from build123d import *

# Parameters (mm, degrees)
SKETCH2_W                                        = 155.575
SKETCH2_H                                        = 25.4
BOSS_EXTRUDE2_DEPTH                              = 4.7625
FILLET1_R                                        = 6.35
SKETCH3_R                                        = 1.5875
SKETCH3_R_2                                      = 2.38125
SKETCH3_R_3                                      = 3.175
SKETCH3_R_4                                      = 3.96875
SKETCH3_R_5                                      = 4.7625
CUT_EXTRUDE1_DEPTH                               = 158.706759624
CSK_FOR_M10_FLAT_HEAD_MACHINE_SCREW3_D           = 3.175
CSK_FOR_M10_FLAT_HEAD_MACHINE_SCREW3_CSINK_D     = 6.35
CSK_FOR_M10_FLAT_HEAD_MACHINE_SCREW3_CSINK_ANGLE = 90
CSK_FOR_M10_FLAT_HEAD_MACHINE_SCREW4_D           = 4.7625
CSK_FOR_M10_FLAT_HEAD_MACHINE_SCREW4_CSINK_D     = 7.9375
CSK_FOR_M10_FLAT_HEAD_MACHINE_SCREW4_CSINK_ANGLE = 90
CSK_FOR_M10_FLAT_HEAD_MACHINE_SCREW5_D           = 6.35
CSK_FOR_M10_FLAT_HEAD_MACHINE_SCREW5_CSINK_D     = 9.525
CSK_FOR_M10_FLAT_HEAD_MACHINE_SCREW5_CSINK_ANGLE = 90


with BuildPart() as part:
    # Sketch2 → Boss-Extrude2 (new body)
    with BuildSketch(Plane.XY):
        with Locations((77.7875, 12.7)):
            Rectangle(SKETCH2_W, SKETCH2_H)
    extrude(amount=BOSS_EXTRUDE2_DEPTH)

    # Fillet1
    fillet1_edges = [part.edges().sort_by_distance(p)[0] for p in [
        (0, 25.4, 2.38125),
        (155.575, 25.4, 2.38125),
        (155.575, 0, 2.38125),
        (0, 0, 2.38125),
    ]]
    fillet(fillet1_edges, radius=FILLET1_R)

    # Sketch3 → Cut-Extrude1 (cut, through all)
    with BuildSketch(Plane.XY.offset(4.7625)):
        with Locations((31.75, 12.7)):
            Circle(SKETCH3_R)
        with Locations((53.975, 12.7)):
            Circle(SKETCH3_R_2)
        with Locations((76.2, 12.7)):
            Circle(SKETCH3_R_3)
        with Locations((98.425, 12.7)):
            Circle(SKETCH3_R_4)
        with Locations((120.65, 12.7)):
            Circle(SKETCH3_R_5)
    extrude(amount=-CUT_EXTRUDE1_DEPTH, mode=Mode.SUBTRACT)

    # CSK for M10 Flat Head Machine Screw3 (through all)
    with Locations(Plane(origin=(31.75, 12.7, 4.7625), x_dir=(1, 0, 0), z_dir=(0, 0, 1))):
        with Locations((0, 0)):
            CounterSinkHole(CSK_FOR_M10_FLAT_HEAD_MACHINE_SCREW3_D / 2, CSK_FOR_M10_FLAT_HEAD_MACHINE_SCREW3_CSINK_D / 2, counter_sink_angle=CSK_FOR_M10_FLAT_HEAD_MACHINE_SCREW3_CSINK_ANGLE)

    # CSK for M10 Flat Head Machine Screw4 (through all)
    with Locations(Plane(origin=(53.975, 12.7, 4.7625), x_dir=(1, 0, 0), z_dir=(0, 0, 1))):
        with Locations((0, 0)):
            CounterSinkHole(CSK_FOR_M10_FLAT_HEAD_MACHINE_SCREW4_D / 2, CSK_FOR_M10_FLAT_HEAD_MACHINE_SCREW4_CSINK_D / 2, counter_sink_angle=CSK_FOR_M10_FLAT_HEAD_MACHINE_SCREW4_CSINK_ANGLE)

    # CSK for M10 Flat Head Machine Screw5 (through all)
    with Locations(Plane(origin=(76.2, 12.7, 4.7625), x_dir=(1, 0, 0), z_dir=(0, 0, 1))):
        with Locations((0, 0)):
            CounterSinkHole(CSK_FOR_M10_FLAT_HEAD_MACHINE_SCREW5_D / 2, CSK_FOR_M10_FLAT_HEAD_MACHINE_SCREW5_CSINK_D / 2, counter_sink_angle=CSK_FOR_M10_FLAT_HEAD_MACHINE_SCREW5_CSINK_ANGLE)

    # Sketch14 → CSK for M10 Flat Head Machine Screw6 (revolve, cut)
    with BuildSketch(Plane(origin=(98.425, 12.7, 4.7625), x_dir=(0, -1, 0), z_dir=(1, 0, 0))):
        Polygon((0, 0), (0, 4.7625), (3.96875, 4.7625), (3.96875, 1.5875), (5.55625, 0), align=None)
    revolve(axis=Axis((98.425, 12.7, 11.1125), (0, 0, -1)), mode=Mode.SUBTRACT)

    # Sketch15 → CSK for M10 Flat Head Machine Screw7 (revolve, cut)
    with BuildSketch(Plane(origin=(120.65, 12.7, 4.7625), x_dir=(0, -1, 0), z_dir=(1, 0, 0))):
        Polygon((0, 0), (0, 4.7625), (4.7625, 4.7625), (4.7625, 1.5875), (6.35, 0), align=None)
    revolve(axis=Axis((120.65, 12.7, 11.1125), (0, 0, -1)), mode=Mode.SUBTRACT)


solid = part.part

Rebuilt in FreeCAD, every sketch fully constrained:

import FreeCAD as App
import Part
import Sketcher
from FreeCAD import Vector
Q = App.Units.Quantity


def edges_at(feature, points):
    """Names of the edges that pass closest to the given points."""
    edges = feature.Shape.Edges
    near = lambda p: min(range(len(edges)), key=lambda i: edges[i].distToShape(Part.Vertex(*p))[0])
    return sorted({f"Edge{near(p) + 1}" for p in points})

doc = App.newDocument("Part")
body = doc.addObject("PartDesign::Body", "Body")

sketch1 = body.newObject("Sketcher::SketchObject", "Sketch")
sketch1.AttachmentSupport = (doc.getObject("XY_Plane"), [""])
sketch1.MapMode = "FlatFace"
sketch1.addGeometry([
    Part.LineSegment(Vector(0, 25, 0), Vector(0, 0, 0)),
    Part.LineSegment(Vector(0, 0, 0), Vector(156, 0, 0)),
    Part.LineSegment(Vector(156, 0, 0), Vector(156, 25, 0)),
    Part.LineSegment(Vector(156, 25, 0), Vector(0, 25, 0)),
], False)
sketch1.addConstraint([
    Sketcher.Constraint("Coincident", 0, 2, 1, 1),
    Sketcher.Constraint("Coincident", 1, 2, 2, 1),
    Sketcher.Constraint("Coincident", 2, 2, 3, 1),
    Sketcher.Constraint("Coincident", 3, 2, 0, 1),
    Sketcher.Constraint("Vertical", 0),
    Sketcher.Constraint("Horizontal", 1),
    Sketcher.Constraint("Vertical", 2),
    Sketcher.Constraint("Horizontal", 3),
    Sketcher.Constraint("Coincident", 0, 2, -1, 1),
    Sketcher.Constraint("DistanceY", 0, 2, 0, 1, Q("1 in")),
    Sketcher.Constraint("DistanceX", 1, 1, 1, 2, Q("6.125 in")),
])
pad1 = body.newObject("PartDesign::Pad", "Pad")
pad1.Profile = sketch1
pad1.Length = Q("0.1875 in")
doc.recompute()

fillet = body.newObject("PartDesign::Fillet", "Fillet")
fillet.Base = (pad1, edges_at(pad1, [
    (0, 25.4, 2.381),
    (155.575, 25.4, 2.381),
    (155.575, 0, 2.381),
    (0, 0, 2.381),
]))
fillet.Radius = Q("0.25 in")

sketch2 = body.newObject("Sketcher::SketchObject", "Sketch001")
sketch2.AttachmentSupport = (doc.getObject("XY_Plane"), [""])
sketch2.MapMode = "FlatFace"
sketch2.AttachmentOffset = App.Placement(Vector(0, 0, 0.1875 * 25.4), App.Rotation())
sketch2.addGeometry([
    Part.Circle(Vector(31.8, 12.7, 0), Vector(0, 0, 1), 1.6),
    Part.Circle(Vector(54, 12.7, 0), Vector(0, 0, 1), 2.4),
    Part.Circle(Vector(76.2, 12.7, 0), Vector(0, 0, 1), 3.2),
    Part.Circle(Vector(98.4, 12.7, 0), Vector(0, 0, 1), 4),
    Part.Circle(Vector(120.7, 12.7, 0), Vector(0, 0, 1), 4.8),
], False)
sketch2.addConstraint([
    Sketcher.Constraint("Horizontal", 0, 3, 1, 3),
    Sketcher.Constraint("Horizontal", 1, 3, 2, 3),
    Sketcher.Constraint("Horizontal", 2, 3, 3, 3),
    Sketcher.Constraint("Horizontal", 3, 3, 4, 3),
    Sketcher.Constraint("Diameter", 2, Q("0.25 in")),
    Sketcher.Constraint("Diameter", 0, Q("0.125 in")),
    Sketcher.Constraint("Diameter", 1, Q("0.1875 in")),
    Sketcher.Constraint("Diameter", 3, Q("0.3125 in")),
    Sketcher.Constraint("Diameter", 4, Q("0.375 in")),
    Sketcher.Constraint("DistanceX", -1, 1, 2, 3, Q("3 in")),
    Sketcher.Constraint("DistanceY", -1, 1, 0, 3, Q("0.5 in")),
    Sketcher.Constraint("DistanceX", 0, 3, 4, 3, Q("3.5 in")),
    Sketcher.Constraint("DistanceX", -1, 1, 0, 3, Q("1.25 in")),
    Sketcher.Constraint("DistanceX", 1, 3, 3, 3, Q("1.75 in")),
    Sketcher.Constraint("DistanceX", -1, 1, 1, 3, Q("2.125 in")),
])
pocket1 = body.newObject("PartDesign::Pocket", "Pocket")
pocket1.Profile = sketch2
pocket1.Type = "ThroughAll"

sketch3 = body.newObject("Sketcher::SketchObject", "Sketch002")
sketch3.AttachmentSupport = (doc.getObject("XY_Plane"), [""])
sketch3.MapMode = "FlatFace"
sketch3.AttachmentOffset = App.Placement(Vector(0, 0, 0.1875 * 25.4), App.Rotation())
sketch3.addGeometry(Part.Circle(Vector(31.8, 12.7, 0), Vector(0, 0, 1), 1.6), False)
sketch3.addConstraint([
    Sketcher.Constraint("Diameter", 0, Q("0.125 in")),
    Sketcher.Constraint("DistanceY", -1, 1, 0, 3, Q("0.5 in")),
    Sketcher.Constraint("DistanceX", -1, 1, 0, 3, Q("1.25 in")),
])
doc.recompute()
hole = body.newObject("PartDesign::Hole", "Hole")
hole.Profile = sketch3
hole.ThreadType = "None"
hole.Diameter = Q("0.125 in")
hole.DepthType = "ThroughAll"
hole.HoleCutType = "Countersink"
hole.HoleCutDiameter = Q("0.25 in")
hole.HoleCutCountersinkAngle = 90

sketch4 = body.newObject("Sketcher::SketchObject", "Sketch003")
sketch4.AttachmentSupport = (doc.getObject("XY_Plane"), [""])
sketch4.MapMode = "FlatFace"
sketch4.AttachmentOffset = App.Placement(Vector(0, 0, 0.1875 * 25.4), App.Rotation())
sketch4.addGeometry(Part.Circle(Vector(54, 12.7, 0), Vector(0, 0, 1), 2.4), False)
sketch4.addConstraint([
    Sketcher.Constraint("Diameter", 0, Q("0.1875 in")),
    Sketcher.Constraint("DistanceY", -1, 1, 0, 3, Q("0.5 in")),
    Sketcher.Constraint("DistanceX", -1, 1, 0, 3, Q("2.125 in")),
])
doc.recompute()
hole2 = body.newObject("PartDesign::Hole", "Hole001")
hole2.Profile = sketch4
hole2.ThreadType = "None"
hole2.Diameter = Q("0.1875 in")
hole2.DepthType = "ThroughAll"
hole2.HoleCutType = "Countersink"
hole2.HoleCutDiameter = Q("0.3125 in")
hole2.HoleCutCountersinkAngle = 90

sketch5 = body.newObject("Sketcher::SketchObject", "Sketch004")
sketch5.AttachmentSupport = (doc.getObject("XY_Plane"), [""])
sketch5.MapMode = "FlatFace"
sketch5.AttachmentOffset = App.Placement(Vector(0, 0, 0.1875 * 25.4), App.Rotation())
sketch5.addGeometry(Part.Circle(Vector(76.2, 12.7, 0), Vector(0, 0, 1), 3.2), False)
sketch5.addConstraint([
    Sketcher.Constraint("Diameter", 0, Q("0.25 in")),
    Sketcher.Constraint("DistanceX", -1, 1, 0, 3, Q("3 in")),
    Sketcher.Constraint("DistanceY", -1, 1, 0, 3, Q("0.5 in")),
])
doc.recompute()
hole3 = body.newObject("PartDesign::Hole", "Hole002")
hole3.Profile = sketch5
hole3.ThreadType = "None"
hole3.Diameter = Q("0.25 in")
hole3.DepthType = "ThroughAll"
hole3.HoleCutType = "Countersink"
hole3.HoleCutDiameter = Q("0.375 in")
hole3.HoleCutCountersinkAngle = 90

sketch6 = body.newObject("Sketcher::SketchObject", "Sketch005")
sketch6.AttachmentSupport = (doc.getObject("YZ_Plane"), [""])
sketch6.MapMode = "FlatFace"
sketch6.AttachmentOffset = App.Placement(Vector(0, 0, 3.875 * 25.4), App.Rotation())
sketch6.addGeometry([
    Part.LineSegment(Vector(12.7, 0, 0), Vector(12.7, 4.8, 0)),
    Part.LineSegment(Vector(12.7, 4.8, 0), Vector(7.1, 4.8, 0)),
    Part.LineSegment(Vector(7.1, 4.8, 0), Vector(8.7, 3.2, 0)),
    Part.LineSegment(Vector(8.7, 3.2, 0), Vector(8.7, 0, 0)),
    Part.LineSegment(Vector(8.7, 0, 0), Vector(12.7, 0, 0)),
], False)
sketch6.addGeometry(Part.LineSegment(Vector(12.7, 4.8, 0), Vector(12.7, 0, 0)), True)
sketch6.addConstraint([
    Sketcher.Constraint("Coincident", 0, 2, 1, 1),
    Sketcher.Constraint("Coincident", 1, 2, 2, 1),
    Sketcher.Constraint("Coincident", 2, 2, 3, 1),
    Sketcher.Constraint("Coincident", 3, 2, 4, 1),
    Sketcher.Constraint("Coincident", 4, 2, 0, 1),
    Sketcher.Constraint("Vertical", 0),
    Sketcher.Constraint("Horizontal", 1),
    Sketcher.Constraint("Vertical", 3),
    Sketcher.Constraint("Horizontal", 4),
    Sketcher.Constraint("Vertical", 5),
    Sketcher.Constraint("Coincident", 5, 1, 0, 2),
    Sketcher.Constraint("PointOnObject", 3, 2, -1),
    Sketcher.Constraint("PointOnObject", 5, 2, -1),
    Sketcher.Constraint("Angle", 2, Q("-45 deg")),
    Sketcher.Constraint("DistanceX", -1, 1, 0, 2, Q("0.5 in")),
    Sketcher.Constraint("DistanceX", 1, 2, 1, 1, Q("0.21875 in")),
    Sketcher.Constraint("DistanceX", 4, 1, 4, 2, Q("0.15625 in")),
    Sketcher.Constraint("DistanceY", 0, 1, 0, 2, Q("0.1875 in")),
])
groove = body.newObject("PartDesign::Groove", "Groove")
groove.Profile = sketch6
groove.ReferenceAxis = (sketch6, ["Axis0"])
groove.Angle = 360

sketch7 = body.newObject("Sketcher::SketchObject", "Sketch006")
sketch7.AttachmentSupport = (doc.getObject("YZ_Plane"), [""])
sketch7.MapMode = "FlatFace"
sketch7.AttachmentOffset = App.Placement(Vector(0, 0, 4.75 * 25.4), App.Rotation())
sketch7.addGeometry([
    Part.LineSegment(Vector(12.7, 0, 0), Vector(12.7, 4.8, 0)),
    Part.LineSegment(Vector(12.7, 4.8, 0), Vector(6.3, 4.8, 0)),
    Part.LineSegment(Vector(6.3, 4.8, 0), Vector(7.9, 3.2, 0)),
    Part.LineSegment(Vector(7.9, 3.2, 0), Vector(7.9, 0, 0)),
    Part.LineSegment(Vector(7.9, 0, 0), Vector(12.7, 0, 0)),
], False)
sketch7.addGeometry(Part.LineSegment(Vector(12.7, 4.8, 0), Vector(12.7, 0, 0)), True)
sketch7.addConstraint([
    Sketcher.Constraint("Coincident", 0, 2, 1, 1),
    Sketcher.Constraint("Coincident", 1, 2, 2, 1),
    Sketcher.Constraint("Coincident", 2, 2, 3, 1),
    Sketcher.Constraint("Coincident", 3, 2, 4, 1),
    Sketcher.Constraint("Coincident", 4, 2, 0, 1),
    Sketcher.Constraint("Vertical", 0),
    Sketcher.Constraint("Horizontal", 1),
    Sketcher.Constraint("Vertical", 3),
    Sketcher.Constraint("Horizontal", 4),
    Sketcher.Constraint("Vertical", 5),
    Sketcher.Constraint("Coincident", 5, 1, 0, 2),
    Sketcher.Constraint("PointOnObject", 3, 2, -1),
    Sketcher.Constraint("PointOnObject", 5, 2, -1),
    Sketcher.Constraint("Equal", 4, 0),
    Sketcher.Constraint("Angle", 2, Q("-45 deg")),
    Sketcher.Constraint("DistanceX", 1, 2, 1, 1, Q("0.25 in")),
    Sketcher.Constraint("DistanceX", -1, 1, 0, 2, Q("0.5 in")),
    Sketcher.Constraint("DistanceX", 4, 1, 4, 2, Q("0.1875 in")),
])
groove2 = body.newObject("PartDesign::Groove", "Groove001")
groove2.Profile = sketch7
groove2.ReferenceAxis = (sketch7, ["Axis0"])
groove2.Angle = 360

doc.recompute()
